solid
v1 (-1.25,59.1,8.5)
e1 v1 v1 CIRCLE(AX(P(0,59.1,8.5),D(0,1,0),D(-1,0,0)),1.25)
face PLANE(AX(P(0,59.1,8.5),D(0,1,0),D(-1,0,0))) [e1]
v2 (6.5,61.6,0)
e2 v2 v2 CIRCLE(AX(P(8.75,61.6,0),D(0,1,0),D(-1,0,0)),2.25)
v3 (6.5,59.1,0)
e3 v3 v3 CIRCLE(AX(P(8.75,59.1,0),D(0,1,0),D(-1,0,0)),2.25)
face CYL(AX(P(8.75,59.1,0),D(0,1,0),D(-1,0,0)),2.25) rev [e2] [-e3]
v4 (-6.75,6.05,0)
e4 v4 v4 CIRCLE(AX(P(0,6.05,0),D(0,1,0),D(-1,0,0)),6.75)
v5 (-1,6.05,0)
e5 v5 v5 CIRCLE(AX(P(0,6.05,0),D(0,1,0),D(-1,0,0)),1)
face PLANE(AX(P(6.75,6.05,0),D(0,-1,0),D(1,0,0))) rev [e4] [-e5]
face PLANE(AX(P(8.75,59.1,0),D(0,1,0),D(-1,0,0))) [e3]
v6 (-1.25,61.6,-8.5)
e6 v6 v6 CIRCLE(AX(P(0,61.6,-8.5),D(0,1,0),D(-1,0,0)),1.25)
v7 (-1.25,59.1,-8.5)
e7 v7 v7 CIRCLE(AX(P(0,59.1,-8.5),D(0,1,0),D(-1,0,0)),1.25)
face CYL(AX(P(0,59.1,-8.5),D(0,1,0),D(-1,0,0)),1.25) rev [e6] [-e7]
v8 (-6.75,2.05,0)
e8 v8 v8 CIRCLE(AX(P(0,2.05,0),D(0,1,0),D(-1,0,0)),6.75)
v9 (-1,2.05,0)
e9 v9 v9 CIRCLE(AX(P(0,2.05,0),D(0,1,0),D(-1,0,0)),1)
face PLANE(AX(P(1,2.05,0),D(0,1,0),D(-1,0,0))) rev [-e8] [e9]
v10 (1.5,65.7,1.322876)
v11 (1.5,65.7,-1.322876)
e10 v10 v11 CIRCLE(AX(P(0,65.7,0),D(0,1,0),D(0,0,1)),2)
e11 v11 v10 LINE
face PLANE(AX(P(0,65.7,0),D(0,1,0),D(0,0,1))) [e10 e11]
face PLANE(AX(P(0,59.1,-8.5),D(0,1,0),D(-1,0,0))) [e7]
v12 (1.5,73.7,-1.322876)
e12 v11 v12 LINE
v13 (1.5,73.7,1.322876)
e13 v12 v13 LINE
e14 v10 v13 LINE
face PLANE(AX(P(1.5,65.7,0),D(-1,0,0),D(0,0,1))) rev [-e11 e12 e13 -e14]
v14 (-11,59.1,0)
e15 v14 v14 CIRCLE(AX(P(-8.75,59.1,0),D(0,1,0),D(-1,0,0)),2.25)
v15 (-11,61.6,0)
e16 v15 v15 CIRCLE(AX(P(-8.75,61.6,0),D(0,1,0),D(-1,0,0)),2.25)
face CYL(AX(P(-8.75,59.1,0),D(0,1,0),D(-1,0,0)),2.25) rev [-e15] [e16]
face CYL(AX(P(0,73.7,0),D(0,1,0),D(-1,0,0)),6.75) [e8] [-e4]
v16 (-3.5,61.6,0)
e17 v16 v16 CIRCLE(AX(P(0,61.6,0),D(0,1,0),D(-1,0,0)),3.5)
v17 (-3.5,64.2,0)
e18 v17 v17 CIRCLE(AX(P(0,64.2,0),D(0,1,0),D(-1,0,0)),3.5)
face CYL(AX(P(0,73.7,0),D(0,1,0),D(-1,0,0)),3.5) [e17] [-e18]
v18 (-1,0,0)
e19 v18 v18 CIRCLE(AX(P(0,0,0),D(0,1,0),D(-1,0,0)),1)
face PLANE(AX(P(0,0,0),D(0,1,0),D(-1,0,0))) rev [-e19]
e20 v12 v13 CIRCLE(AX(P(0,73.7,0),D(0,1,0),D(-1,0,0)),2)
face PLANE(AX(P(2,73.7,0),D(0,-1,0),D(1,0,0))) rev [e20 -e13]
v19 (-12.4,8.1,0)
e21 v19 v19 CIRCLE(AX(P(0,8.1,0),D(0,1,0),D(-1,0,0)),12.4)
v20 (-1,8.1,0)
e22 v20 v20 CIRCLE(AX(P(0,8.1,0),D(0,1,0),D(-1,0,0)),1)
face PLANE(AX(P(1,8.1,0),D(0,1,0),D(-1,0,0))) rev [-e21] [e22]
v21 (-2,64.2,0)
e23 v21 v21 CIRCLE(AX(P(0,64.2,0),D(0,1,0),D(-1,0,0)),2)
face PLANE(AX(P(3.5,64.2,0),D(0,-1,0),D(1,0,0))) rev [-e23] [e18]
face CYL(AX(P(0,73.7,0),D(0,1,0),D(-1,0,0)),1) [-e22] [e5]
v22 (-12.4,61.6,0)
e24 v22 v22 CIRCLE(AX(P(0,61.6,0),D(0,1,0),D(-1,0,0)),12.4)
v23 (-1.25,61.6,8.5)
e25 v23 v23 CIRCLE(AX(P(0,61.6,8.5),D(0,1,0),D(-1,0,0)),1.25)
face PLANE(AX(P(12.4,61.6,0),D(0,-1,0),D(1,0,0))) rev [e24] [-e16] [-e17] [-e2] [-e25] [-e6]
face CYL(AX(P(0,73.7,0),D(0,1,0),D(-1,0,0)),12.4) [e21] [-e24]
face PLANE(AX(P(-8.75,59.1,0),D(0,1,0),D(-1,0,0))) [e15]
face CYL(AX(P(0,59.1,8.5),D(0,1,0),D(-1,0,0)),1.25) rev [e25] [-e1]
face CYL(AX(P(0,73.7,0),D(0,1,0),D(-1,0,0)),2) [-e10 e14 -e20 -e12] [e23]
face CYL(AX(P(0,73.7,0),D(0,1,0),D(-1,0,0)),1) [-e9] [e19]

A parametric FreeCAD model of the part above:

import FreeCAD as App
import Part
import Sketcher
Q = App.Units.Quantity

doc = App.newDocument("Part")
params = doc.addObject("Spreadsheet::Sheet", "Params")
for row, (alias, value) in enumerate([
    ("sketch1_width", "1 mm"),
    ("sketch1_width2", "2 mm"),
    ("sketch1_height", "4 mm"),
    ("sketch1_width3", "11.4 mm"),
    ("sketch1_width4", "8.9 mm"),
    ("revolution_angle", "360 deg"),
    ("sketch2_diameter", "4.5 mm"),
    ("sketch2_diameter2", "2.5 mm"),
    ("pocket1_length", "2.5 mm"),
    ("pocket2_length", "8 mm"),
], start=1):
    params.set(f"A{row}", alias)
    params.set(f"B{row}", "=" + value)
    params.setAlias(f"B{row}", alias)

body = doc.addObject("PartDesign::Body", "Body")

# Sketch on XY plane
sketch1 = doc.addObject("Sketcher::SketchObject", "Sketch")
body.addObject(sketch1)
sketch1.AttachmentSupport = (doc.XY_Plane, [""])
sketch1.MapMode = "FlatFace"
sketch1.addGeometry([
    Part.LineSegment(App.Vector(0, 0, 0), App.Vector(1, 0, 0)),  # 0
    Part.LineSegment(App.Vector(1, 0, 0), App.Vector(1, 2, 0)),  # 1
    Part.LineSegment(App.Vector(1, 2, 0), App.Vector(6.8, 2, 0)),  # 2
    Part.LineSegment(App.Vector(6.8, 2, 0), App.Vector(6.8, 6, 0)),  # 3
    Part.LineSegment(App.Vector(6.8, 6, 0), App.Vector(1, 6, 0)),  # 4
    Part.LineSegment(App.Vector(1, 6, 0), App.Vector(1, 8.1, 0)),  # 5
    Part.LineSegment(App.Vector(1, 8.1, 0), App.Vector(12.4, 8.1, 0)),  # 6
    Part.LineSegment(App.Vector(12.4, 8.1, 0), App.Vector(12.4, 61.6, 0)),  # 7
    Part.LineSegment(App.Vector(12.4, 61.6, 0), App.Vector(3.5, 61.6, 0)),  # 8
    Part.LineSegment(App.Vector(3.5, 61.6, 0), App.Vector(3.5, 64.2, 0)),  # 9
    Part.LineSegment(App.Vector(3.5, 64.2, 0), App.Vector(2, 64.2, 0)),  # 10
    Part.LineSegment(App.Vector(2, 64.2, 0), App.Vector(2, 73.7, 0)),  # 11
    Part.LineSegment(App.Vector(2, 73.7, 0), App.Vector(0, 73.7, 0)),  # 12
    Part.LineSegment(App.Vector(0, 73.7, 0), App.Vector(0, 0, 0)),  # 13
], False)
sketch1.addConstraint([
    Sketcher.Constraint("Coincident", 0, 2, 1, 1),
    Sketcher.Constraint("Coincident", 1, 2, 2, 1),
    Sketcher.Constraint("Coincident", 2, 2, 3, 1),
    Sketcher.Constraint("Coincident", 3, 2, 4, 1),
    Sketcher.Constraint("Coincident", 4, 2, 5, 1),
    Sketcher.Constraint("Coincident", 5, 2, 6, 1),
    Sketcher.Constraint("Coincident", 6, 2, 7, 1),
    Sketcher.Constraint("Coincident", 7, 2, 8, 1),
    Sketcher.Constraint("Coincident", 8, 2, 9, 1),
    Sketcher.Constraint("Coincident", 9, 2, 10, 1),
    Sketcher.Constraint("Coincident", 10, 2, 11, 1),
    Sketcher.Constraint("Coincident", 11, 2, 12, 1),
    Sketcher.Constraint("Coincident", 12, 2, 13, 1),
    Sketcher.Constraint("Coincident", 13, 2, 0, 1),
    Sketcher.Constraint("Horizontal", 0),
    Sketcher.Constraint("Vertical", 1),
    Sketcher.Constraint("Horizontal", 2),
    Sketcher.Constraint("Vertical", 3),
    Sketcher.Constraint("Horizontal", 4),
    Sketcher.Constraint("Vertical", 5),
    Sketcher.Constraint("Horizontal", 6),
    Sketcher.Constraint("Vertical", 7),
    Sketcher.Constraint("Horizontal", 8),
    Sketcher.Constraint("Vertical", 9),
    Sketcher.Constraint("Horizontal", 10),
    Sketcher.Constraint("Vertical", 11),
    Sketcher.Constraint("Horizontal", 12),
    Sketcher.Constraint("Vertical", 13),
    Sketcher.Constraint("Coincident", 13, 2, -1, 1),
    Sketcher.Constraint("Vertical", 1, 2, 4, 2),
    Sketcher.Constraint("Equal", 1, 5),
    Sketcher.Constraint("DistanceX", 0, 1, 0, 2, Q("1 mm")),
    Sketcher.Constraint("DistanceX", 12, 2, 12, 1, Q("2 mm")),
    Sketcher.Constraint("DistanceY", 3, 1, 3, 2, Q("4 mm")),
    Sketcher.Constraint("DistanceX", 6, 1, 6, 2, Q("11.4 mm")),
    Sketcher.Constraint("DistanceX", 8, 2, 8, 1, Q("8.9 mm")),
    Sketcher.Constraint("DistanceY", 7, 1, 7, 2, Q("53.5 mm")),
    Sketcher.Constraint("DistanceY", 9, 1, 9, 2, Q("2.6 mm")),
    Sketcher.Constraint("DistanceY", 11, 1, 11, 2, Q("9.5 mm")),
    Sketcher.Constraint("DistanceY", 13, 2, 13, 1, Q("73.7 mm")),
    Sketcher.Constraint("DistanceX", 2, 1, 2, 2, Q("5.75 mm")),
])
sketch1.setExpression("Constraints[31]", "Params.sketch1_width")
sketch1.setExpression("Constraints[32]", "Params.sketch1_width2")
sketch1.setExpression("Constraints[33]", "Params.sketch1_height")
sketch1.setExpression("Constraints[34]", "Params.sketch1_width3")
sketch1.setExpression("Constraints[35]", "Params.sketch1_width4")
revolution = doc.addObject("PartDesign::Revolution", "Revolution")
body.addObject(revolution)
revolution.Profile = sketch1
revolution.ReferenceAxis = (sketch1, ["V_Axis"])
revolution.setExpression("Angle", "Params.revolution_angle")

# Sketch on XZ plane
sketch2 = doc.addObject("Sketcher::SketchObject", "Sketch001")
body.addObject(sketch2)
sketch2.AttachmentSupport = (doc.XZ_Plane, [""])
sketch2.MapMode = "FlatFace"
sketch2.AttachmentOffset = App.Placement(App.Vector(0, 0, -61.6), App.Rotation())
sketch2.addGeometry([
    Part.Circle(App.Vector(8.8, 0, 0), App.Vector(0, 0, 1), 2.2),
    Part.Circle(App.Vector(-8.8, 0, 0), App.Vector(0, 0, 1), 2.2),
    Part.Circle(App.Vector(0, -8.5, 0), App.Vector(0, 0, 1), 1.2),
    Part.Circle(App.Vector(0, 8.5, 0), App.Vector(0, 0, 1), 1.2),
], False)
sketch2.addConstraint([
    Sketcher.Constraint("Equal", 0, 1),
    Sketcher.Constraint("Equal", 2, 3),
    Sketcher.Constraint("Symmetric", 0, 3, 1, 3, -1, 1),
    Sketcher.Constraint("Symmetric", 2, 3, 3, 3, -1, 1),
    Sketcher.Constraint("PointOnObject", 0, 3, -1),
    Sketcher.Constraint("PointOnObject", 2, 3, -2),
    Sketcher.Constraint("Diameter", 0, Q("4.5 mm")),
    Sketcher.Constraint("Diameter", 2, Q("2.5 mm")),
    Sketcher.Constraint("DistanceY", 2, 3, 3, 3, Q("17 mm")),
    Sketcher.Constraint("DistanceX", 1, 3, 0, 3, Q("17.5 mm")),
])
sketch2.setExpression("Constraints[6]", "Params.sketch2_diameter")
sketch2.setExpression("Constraints[7]", "Params.sketch2_diameter2")
pocket1 = doc.addObject("PartDesign::Pocket", "Pocket")
body.addObject(pocket1)
pocket1.Profile = sketch2
pocket1.setExpression("Length", "Params.pocket1_length")
pocket1.Reversed = True

# Sketch on XZ plane
sketch3 = doc.addObject("Sketcher::SketchObject", "Sketch002")
body.addObject(sketch3)
sketch3.AttachmentSupport = (doc.XZ_Plane, [""])
sketch3.MapMode = "FlatFace"
sketch3.AttachmentOffset = App.Placement(App.Vector(0, 0, -73.7), App.Rotation())
sketch3.addGeometry([
    Part.LineSegment(App.Vector(2, -50, 0), App.Vector(2, 50, 0)),
    Part.LineSegment(App.Vector(2, 50, 0), App.Vector(100, 50, 0)),
    Part.LineSegment(App.Vector(100, 50, 0), App.Vector(100, -50, 0)),
    Part.LineSegment(App.Vector(100, -50, 0), App.Vector(2, -50, 0)),
], False)
sketch3.addConstraint([
    Sketcher.Constraint("Coincident", 0, 2, 1, 1),
    Sketcher.Constraint("Coincident", 1, 2, 2, 1),
    Sketcher.Constraint("Coincident", 2, 2, 3, 1),
    Sketcher.Constraint("Coincident", 3, 2, 0, 1),
    Sketcher.Constraint("Vertical", 0),
    Sketcher.Constraint("Horizontal", 1),
    Sketcher.Constraint("Vertical", 2),
    Sketcher.Constraint("Horizontal", 3),
    Sketcher.Constraint("DistanceX", -1, 1, 0, 2, Q("1.5 mm")),
    Sketcher.Constraint("DistanceY", 0, 1, 0, 2, Q("100.776648 mm")),
    Sketcher.Constraint("DistanceX", 1, 1, 1, 2, Q("98.130897 mm")),
    Sketcher.Constraint("DistanceY", -1, 1, 0, 2, Q("50.388324 mm")),
])
pocket2 = doc.addObject("PartDesign::Pocket", "Pocket001")
body.addObject(pocket2)
pocket2.Profile = sketch3
pocket2.setExpression("Length", "Params.pocket2_length")
pocket2.Reversed = True

doc.recompute()
